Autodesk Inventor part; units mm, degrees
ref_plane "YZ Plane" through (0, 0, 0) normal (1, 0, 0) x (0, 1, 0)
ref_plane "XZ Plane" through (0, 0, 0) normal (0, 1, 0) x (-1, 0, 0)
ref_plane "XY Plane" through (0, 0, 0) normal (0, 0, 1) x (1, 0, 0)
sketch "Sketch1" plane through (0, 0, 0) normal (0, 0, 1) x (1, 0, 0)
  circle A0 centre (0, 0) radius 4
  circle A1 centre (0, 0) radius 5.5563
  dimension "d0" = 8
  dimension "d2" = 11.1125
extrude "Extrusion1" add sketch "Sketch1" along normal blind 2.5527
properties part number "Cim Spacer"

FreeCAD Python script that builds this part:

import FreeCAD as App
import Part
import Sketcher

doc = App.newDocument("Part")
body = doc.addObject("PartDesign::Body", "Body")

sketch1 = body.newObject("Sketcher::SketchObject", "Sketch")
sketch1.AttachmentSupport = (doc.getObject("XY_Plane"), [""])
sketch1.MapMode = "FlatFace"
sketch1.addGeometry([
    Part.Circle(App.Vector(0, 0, 0), App.Vector(0, 0, 1), 5.6),
    Part.Circle(App.Vector(0, 0, 0), App.Vector(0, 0, 1), 4),
], False)
sketch1.addConstraint([
    Sketcher.Constraint("Coincident", 0, 3, -1, 1),
    Sketcher.Constraint("Coincident", 1, 3, -1, 1),
    Sketcher.Constraint("Diameter", 1, 8.0),
    Sketcher.Constraint("Diameter", 0, 11.1126),
])
pad1 = body.newObject("PartDesign::Pad", "Pad")
pad1.Profile = sketch1
pad1.Length = 2.5527

doc.recompute()
